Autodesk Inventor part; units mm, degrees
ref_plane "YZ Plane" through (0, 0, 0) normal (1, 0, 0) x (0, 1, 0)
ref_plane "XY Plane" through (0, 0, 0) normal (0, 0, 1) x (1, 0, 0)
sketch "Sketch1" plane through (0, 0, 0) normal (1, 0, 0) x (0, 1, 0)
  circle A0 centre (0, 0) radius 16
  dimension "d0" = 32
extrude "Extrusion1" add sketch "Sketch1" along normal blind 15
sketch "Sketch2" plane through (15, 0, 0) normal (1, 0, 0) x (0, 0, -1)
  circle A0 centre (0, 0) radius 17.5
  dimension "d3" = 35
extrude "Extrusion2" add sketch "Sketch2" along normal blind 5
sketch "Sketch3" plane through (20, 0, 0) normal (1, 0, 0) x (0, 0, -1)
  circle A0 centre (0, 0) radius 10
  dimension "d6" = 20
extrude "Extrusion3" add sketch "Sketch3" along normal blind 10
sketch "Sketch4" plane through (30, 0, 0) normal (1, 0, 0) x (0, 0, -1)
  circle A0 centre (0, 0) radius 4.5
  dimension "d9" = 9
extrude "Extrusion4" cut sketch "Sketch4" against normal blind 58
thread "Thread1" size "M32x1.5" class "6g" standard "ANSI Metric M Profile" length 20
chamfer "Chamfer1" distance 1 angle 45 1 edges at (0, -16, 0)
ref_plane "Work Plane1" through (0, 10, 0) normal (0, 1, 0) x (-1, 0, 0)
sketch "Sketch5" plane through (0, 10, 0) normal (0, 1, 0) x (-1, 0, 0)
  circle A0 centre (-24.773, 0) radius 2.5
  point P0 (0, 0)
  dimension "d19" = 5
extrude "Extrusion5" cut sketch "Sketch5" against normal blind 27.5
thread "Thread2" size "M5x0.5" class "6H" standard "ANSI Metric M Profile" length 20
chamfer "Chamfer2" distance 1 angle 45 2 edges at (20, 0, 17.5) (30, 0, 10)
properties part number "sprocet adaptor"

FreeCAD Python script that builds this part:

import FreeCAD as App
import Part
import Sketcher
from FreeCAD import Vector


def edges_at(feature, points):
    """Names of the edges that pass closest to the given points."""
    edges = feature.Shape.Edges
    near = lambda p: min(range(len(edges)), key=lambda i: edges[i].distToShape(Part.Vertex(*p))[0])
    return sorted({f"Edge{near(p) + 1}" for p in points})

doc = App.newDocument("Part")
params = doc.addObject("Spreadsheet::Sheet", "Params")
for row, (alias, value) in enumerate([
    ("sketch1_diameter", "32 mm"),
    ("pad1_length", "15 mm"),
    ("sketch2_diameter", "35 mm"),
    ("pad2_length", "5 mm"),
    ("sketch3_diameter", "20 mm"),
    ("pad3_length", "10 mm"),
    ("sketch4_diameter", "9 mm"),
    ("pocket1_length", "58 mm"),
    ("chamfer_size", "1 mm"),
    ("sketch5_diameter", "5 mm"),
    ("pocket2_length", "27.5 mm"),
    ("chamfer2_size", "1 mm"),
], start=1):
    params.set(f"A{row}", alias)
    params.set(f"B{row}", "=" + value)
    params.setAlias(f"B{row}", alias)

body = doc.addObject("PartDesign::Body", "Body")

sketch1 = doc.addObject("Sketcher::SketchObject", "Sketch")
body.addObject(sketch1)
sketch1.AttachmentSupport = (doc.YZ_Plane, [""])
sketch1.MapMode = "FlatFace"
sketch1.addGeometry(Part.Circle(Vector(0, 0, 0), Vector(0, 0, 1), 16), False)
sketch1.addConstraint([
    Sketcher.Constraint("Coincident", 0, 3, -1, 1),
    Sketcher.Constraint("Diameter", 0, 32.0),
])
sketch1.setExpression("Constraints[1]", "Params.sketch1_diameter")
pad1 = doc.addObject("PartDesign::Pad", "Pad")
body.addObject(pad1)
pad1.Profile = sketch1
pad1.setExpression("Length", "Params.pad1_length")

sketch2 = doc.addObject("Sketcher::SketchObject", "Sketch001")
body.addObject(sketch2)
sketch2.AttachmentSupport = (doc.YZ_Plane, [""])
sketch2.MapMode = "FlatFace"
sketch2.AttachmentOffset = App.Placement(Vector(0, 0, 15), App.Rotation())
sketch2.addGeometry(Part.Circle(Vector(0, 0, 0), Vector(0, 0, 1), 18), False)
sketch2.addConstraint([
    Sketcher.Constraint("Coincident", 0, 3, -1, 1),
    Sketcher.Constraint("Diameter", 0, 35.0),
])
sketch2.setExpression("Constraints[1]", "Params.sketch2_diameter")
pad2 = doc.addObject("PartDesign::Pad", "Pad001")
body.addObject(pad2)
pad2.Profile = sketch2
pad2.setExpression("Length", "Params.pad2_length")

sketch3 = doc.addObject("Sketcher::SketchObject", "Sketch002")
body.addObject(sketch3)
sketch3.AttachmentSupport = (doc.YZ_Plane, [""])
sketch3.MapMode = "FlatFace"
sketch3.AttachmentOffset = App.Placement(Vector(0, 0, 20), App.Rotation())
sketch3.addGeometry(Part.Circle(Vector(0, 0, 0), Vector(0, 0, 1), 10), False)
sketch3.addConstraint([
    Sketcher.Constraint("Coincident", 0, 3, -1, 1),
    Sketcher.Constraint("Diameter", 0, 20.0),
])
sketch3.setExpression("Constraints[1]", "Params.sketch3_diameter")
pad3 = doc.addObject("PartDesign::Pad", "Pad002")
body.addObject(pad3)
pad3.Profile = sketch3
pad3.setExpression("Length", "Params.pad3_length")

sketch4 = doc.addObject("Sketcher::SketchObject", "Sketch003")
body.addObject(sketch4)
sketch4.AttachmentSupport = (doc.YZ_Plane, [""])
sketch4.MapMode = "FlatFace"
sketch4.AttachmentOffset = App.Placement(Vector(0, 0, 30), App.Rotation())
sketch4.addGeometry(Part.Circle(Vector(0, 0, 0), Vector(0, 0, 1), 4.5), False)
sketch4.addConstraint([
    Sketcher.Constraint("Coincident", 0, 3, -1, 1),
    Sketcher.Constraint("Diameter", 0, 9.0),
])
sketch4.setExpression("Constraints[1]", "Params.sketch4_diameter")
pocket1 = doc.addObject("PartDesign::Pocket", "Pocket")
body.addObject(pocket1)
pocket1.Profile = sketch4
pocket1.setExpression("Length", "Params.pocket1_length")
doc.recompute()

chamfer = doc.addObject("PartDesign::Chamfer", "Chamfer")
body.addObject(chamfer)
chamfer.Base = (pocket1, edges_at(pocket1, [(0, -16, 0)]))
chamfer.setExpression("Size", "Params.chamfer_size")

sketch5 = doc.addObject("Sketcher::SketchObject", "Sketch004")
body.addObject(sketch5)
sketch5.AttachmentSupport = (doc.XZ_Plane, [""])
sketch5.MapMode = "FlatFace"
sketch5.AttachmentOffset = App.Placement(Vector(0, 0, -10), App.Rotation())
sketch5.addGeometry(Part.Circle(Vector(24.8, 0, 0), Vector(0, 0, 1), 2.5), False)
sketch5.addConstraint([
    Sketcher.Constraint("PointOnObject", 0, 3, -1),
    Sketcher.Constraint("Diameter", 0, 5.0),
    Sketcher.Constraint("DistanceX", -1, 1, 0, 3, 24.773),
])
sketch5.setExpression("Constraints[1]", "Params.sketch5_diameter")
pocket2 = doc.addObject("PartDesign::Pocket", "Pocket001")
body.addObject(pocket2)
pocket2.Profile = sketch5
pocket2.setExpression("Length", "Params.pocket2_length")
pocket2.Reversed = True
doc.recompute()

chamfer2 = doc.addObject("PartDesign::Chamfer", "Chamfer001")
body.addObject(chamfer2)
chamfer2.Base = (pocket2, edges_at(pocket2, [(20, 0, 17.5), (30, 0, 10)]))
chamfer2.setExpression("Size", "Params.chamfer2_size")

doc.recompute()
